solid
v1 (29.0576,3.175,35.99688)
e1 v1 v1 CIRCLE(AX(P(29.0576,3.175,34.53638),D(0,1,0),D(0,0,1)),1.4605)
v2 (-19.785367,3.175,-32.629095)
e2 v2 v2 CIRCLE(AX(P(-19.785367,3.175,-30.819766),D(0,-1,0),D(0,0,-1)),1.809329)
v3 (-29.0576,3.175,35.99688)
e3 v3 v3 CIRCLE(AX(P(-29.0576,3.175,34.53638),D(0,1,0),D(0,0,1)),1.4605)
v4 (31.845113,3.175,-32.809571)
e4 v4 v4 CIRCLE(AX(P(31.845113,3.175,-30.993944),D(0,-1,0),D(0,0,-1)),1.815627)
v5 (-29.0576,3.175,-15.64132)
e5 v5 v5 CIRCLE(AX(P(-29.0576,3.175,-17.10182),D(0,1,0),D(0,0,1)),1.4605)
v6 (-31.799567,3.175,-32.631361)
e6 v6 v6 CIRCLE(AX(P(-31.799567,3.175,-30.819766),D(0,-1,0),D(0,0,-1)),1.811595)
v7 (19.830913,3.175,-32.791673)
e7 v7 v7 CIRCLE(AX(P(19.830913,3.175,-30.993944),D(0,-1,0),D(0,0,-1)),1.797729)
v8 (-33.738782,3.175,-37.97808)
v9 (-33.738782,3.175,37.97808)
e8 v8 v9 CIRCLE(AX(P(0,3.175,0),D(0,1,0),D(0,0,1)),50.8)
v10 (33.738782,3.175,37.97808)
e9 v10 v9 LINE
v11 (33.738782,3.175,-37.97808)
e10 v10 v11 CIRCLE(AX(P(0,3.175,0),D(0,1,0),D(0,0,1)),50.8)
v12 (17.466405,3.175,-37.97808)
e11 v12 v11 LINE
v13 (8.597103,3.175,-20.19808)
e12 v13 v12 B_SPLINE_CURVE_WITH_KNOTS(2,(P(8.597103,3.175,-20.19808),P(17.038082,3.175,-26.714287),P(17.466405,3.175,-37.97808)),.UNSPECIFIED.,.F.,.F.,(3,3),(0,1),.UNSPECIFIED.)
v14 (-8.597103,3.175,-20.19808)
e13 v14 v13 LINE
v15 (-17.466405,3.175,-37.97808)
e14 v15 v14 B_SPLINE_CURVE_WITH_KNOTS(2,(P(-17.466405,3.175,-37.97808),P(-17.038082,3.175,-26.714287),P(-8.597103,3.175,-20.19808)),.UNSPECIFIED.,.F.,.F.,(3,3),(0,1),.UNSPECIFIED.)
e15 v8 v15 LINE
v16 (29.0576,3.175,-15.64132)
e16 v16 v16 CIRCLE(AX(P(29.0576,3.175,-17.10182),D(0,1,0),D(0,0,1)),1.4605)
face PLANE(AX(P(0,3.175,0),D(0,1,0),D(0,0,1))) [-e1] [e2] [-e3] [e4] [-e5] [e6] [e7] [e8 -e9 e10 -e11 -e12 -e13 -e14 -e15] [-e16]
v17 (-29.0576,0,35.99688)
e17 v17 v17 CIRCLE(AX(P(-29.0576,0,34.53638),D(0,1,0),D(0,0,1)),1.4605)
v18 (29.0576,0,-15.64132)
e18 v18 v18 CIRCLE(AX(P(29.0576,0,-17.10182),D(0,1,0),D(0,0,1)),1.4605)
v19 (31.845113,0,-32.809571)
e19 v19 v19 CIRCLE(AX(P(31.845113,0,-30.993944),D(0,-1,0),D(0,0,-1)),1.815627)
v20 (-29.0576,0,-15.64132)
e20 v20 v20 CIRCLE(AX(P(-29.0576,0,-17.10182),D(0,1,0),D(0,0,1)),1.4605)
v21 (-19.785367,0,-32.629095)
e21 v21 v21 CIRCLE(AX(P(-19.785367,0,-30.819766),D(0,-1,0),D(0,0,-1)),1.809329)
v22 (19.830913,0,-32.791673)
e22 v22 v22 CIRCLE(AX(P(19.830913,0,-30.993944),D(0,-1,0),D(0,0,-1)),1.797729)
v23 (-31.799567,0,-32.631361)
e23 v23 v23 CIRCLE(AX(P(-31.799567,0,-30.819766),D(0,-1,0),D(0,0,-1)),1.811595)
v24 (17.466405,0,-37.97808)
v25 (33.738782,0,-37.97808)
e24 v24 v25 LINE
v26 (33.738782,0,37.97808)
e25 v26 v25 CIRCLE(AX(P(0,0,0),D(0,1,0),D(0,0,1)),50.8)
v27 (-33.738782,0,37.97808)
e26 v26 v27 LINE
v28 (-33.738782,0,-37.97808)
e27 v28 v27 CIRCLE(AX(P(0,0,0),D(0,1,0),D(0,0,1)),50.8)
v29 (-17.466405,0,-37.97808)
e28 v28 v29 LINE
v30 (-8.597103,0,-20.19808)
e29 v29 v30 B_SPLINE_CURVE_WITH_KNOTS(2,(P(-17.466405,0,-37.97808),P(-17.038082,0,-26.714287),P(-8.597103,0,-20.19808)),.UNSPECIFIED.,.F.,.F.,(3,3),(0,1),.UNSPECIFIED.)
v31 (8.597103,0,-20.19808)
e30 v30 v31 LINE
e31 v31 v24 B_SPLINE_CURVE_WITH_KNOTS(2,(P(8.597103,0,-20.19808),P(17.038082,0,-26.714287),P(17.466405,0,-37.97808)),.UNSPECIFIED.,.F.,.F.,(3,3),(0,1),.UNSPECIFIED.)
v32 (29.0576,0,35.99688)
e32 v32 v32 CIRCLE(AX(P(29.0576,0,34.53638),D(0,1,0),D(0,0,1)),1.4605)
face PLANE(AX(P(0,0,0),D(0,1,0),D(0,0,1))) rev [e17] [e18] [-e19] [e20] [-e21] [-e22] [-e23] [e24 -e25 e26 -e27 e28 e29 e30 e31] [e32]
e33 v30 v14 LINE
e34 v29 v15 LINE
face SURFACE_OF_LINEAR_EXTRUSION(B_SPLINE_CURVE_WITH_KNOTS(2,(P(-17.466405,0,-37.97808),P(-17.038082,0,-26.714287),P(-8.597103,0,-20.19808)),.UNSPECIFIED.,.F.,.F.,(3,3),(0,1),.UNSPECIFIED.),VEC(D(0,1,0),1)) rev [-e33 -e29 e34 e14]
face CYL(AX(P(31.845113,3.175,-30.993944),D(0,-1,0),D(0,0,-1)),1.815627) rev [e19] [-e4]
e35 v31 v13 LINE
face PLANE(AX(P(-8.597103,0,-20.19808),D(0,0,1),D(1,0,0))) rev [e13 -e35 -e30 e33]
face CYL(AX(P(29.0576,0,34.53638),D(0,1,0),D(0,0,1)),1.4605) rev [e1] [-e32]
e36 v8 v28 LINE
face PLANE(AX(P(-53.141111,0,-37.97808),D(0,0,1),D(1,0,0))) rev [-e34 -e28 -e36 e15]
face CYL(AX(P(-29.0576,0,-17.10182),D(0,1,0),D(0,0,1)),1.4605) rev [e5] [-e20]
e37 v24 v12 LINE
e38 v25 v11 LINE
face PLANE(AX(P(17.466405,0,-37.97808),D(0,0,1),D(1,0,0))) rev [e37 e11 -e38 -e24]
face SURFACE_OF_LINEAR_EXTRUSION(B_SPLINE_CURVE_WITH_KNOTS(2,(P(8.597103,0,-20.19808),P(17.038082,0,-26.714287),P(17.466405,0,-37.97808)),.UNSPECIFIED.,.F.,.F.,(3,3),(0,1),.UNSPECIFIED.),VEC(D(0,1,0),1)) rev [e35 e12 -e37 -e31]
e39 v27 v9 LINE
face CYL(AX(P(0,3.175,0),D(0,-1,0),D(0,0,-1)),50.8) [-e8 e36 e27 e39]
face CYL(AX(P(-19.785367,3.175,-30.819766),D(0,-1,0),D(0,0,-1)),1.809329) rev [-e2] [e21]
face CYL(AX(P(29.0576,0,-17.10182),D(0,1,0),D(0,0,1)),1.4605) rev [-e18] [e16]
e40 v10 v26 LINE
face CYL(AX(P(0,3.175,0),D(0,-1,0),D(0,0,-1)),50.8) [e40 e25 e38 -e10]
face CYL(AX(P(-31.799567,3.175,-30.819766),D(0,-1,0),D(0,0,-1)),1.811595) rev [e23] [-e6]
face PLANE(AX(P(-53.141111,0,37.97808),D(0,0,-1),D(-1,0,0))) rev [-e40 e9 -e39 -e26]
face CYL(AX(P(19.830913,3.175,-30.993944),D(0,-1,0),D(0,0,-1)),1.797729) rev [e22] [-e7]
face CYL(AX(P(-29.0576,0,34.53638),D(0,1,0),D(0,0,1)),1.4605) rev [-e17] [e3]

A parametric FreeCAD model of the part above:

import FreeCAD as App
import Part
import Sketcher

V = App.Vector
Q = App.Units.Quantity

doc = App.newDocument("Part")
params = doc.addObject("Spreadsheet::Sheet", "Params")
for row, (alias, value) in enumerate([
    ("sketch1_diameter", "4 in"),
    ("pad1_length", "0.125 in"),
    ("pocket1_length", "0.125 in"),
    ("sketch3_diameter", "0.115 in"),
    ("pocket2_length", "0.125 in"),
    ("pocket3_length", "0.125 in"),
], start=1):
    params.set(f"A{row}", alias)
    params.set(f"B{row}", "=" + value)
    params.setAlias(f"B{row}", alias)

body = doc.addObject("PartDesign::Body", "Body")

# Sketch on XZ plane
sketch1 = body.newObject("Sketcher::SketchObject", "Sketch")
sketch1.AttachmentSupport = (doc.getObject("XZ_Plane"), [""])
sketch1.MapMode = "FlatFace"
sketch1.addGeometry(Part.Circle(V(0, 0, 0), V(0, 0, 1), 51), False)
sketch1.addConstraint(Sketcher.Constraint("Coincident", 0, 3, -1, 1))
sketch1.addConstraint(Sketcher.Constraint("Diameter", 0, Q("4 in")))
sketch1.setExpression("Constraints[1]", "Params.sketch1_diameter")
pad1 = body.newObject("PartDesign::Pad", "Pad")
pad1.Profile = sketch1
pad1.setExpression("Length", "Params.pad1_length")
pad1.Reversed = True

# Sketch on XZ plane
sketch2 = body.newObject("Sketcher::SketchObject", "Sketch001")
sketch2.AttachmentSupport = (doc.getObject("XZ_Plane"), [""])
sketch2.MapMode = "FlatFace"
sketch2.AttachmentOffset = App.Placement(V(0, 0, -0.125 * 25.4), App.Rotation())
sketch2.addGeometry(Part.LineSegment(V(61.74668, -55.715142, 0), V(-53.141111, -55.715142, 0)), False)
sketch2.addGeometry(Part.LineSegment(V(-53.141111, -55.715142, 0), V(-53.141111, -37.97808, 0)), False)
sketch2.addGeometry(Part.LineSegment(V(-53.141111, -37.97808, 0), V(-17.466405, -37.97808, 0)), False)
sketch2.addGeometry(Part.BSplineCurve([V(-17.466405, -37.97808, 0), V(-17.038082, -26.714287, 0), V(-8.597103, -20.19808, 0)], [3, 3], [0, 1], False, 2, [1, 1, 1], False), False)
sketch2.addGeometry(Part.LineSegment(V(-8.597103, -20.19808, 0), V(8.597103, -20.19808, 0)), False)
sketch2.addGeometry(Part.BSplineCurve([V(17.466405, -37.97808, 0), V(17.038082, -26.714287, 0), V(8.597103, -20.19808, 0)], [3, 3], [0, 1], False, 2, [1, 1, 1], False), False)
sketch2.addGeometry(Part.LineSegment(V(17.466405, -37.97808, 0), V(61.74668, -37.97808, 0)), False)
sketch2.addGeometry(Part.LineSegment(V(61.74668, -37.97808, 0), V(61.74668, -55.715142, 0)), False)
sketch2.addGeometry(Part.LineSegment(V(-53.141111, 37.97808, 0), V(-53.141111, 55.715142, 0)), False)
sketch2.addGeometry(Part.LineSegment(V(-53.141111, 55.715142, 0), V(61.74668, 55.715142, 0)), False)
sketch2.addGeometry(Part.LineSegment(V(61.74668, 55.715142, 0), V(61.74668, 37.97808, 0)), False)
sketch2.addGeometry(Part.LineSegment(V(61.74668, 37.97808, 0), V(-53.141111, 37.97808, 0)), False)
sketch2.addConstraint(Sketcher.Constraint("Block", 3))
sketch2.addConstraint(Sketcher.Constraint("Block", 5))
sketch2.addConstraint(Sketcher.Constraint("Coincident", 0, 2, 1, 1))
sketch2.addConstraint(Sketcher.Constraint("Coincident", 1, 2, 2, 1))
sketch2.addConstraint(Sketcher.Constraint("Coincident", 2, 2, 3, 1))
sketch2.addConstraint(Sketcher.Constraint("Coincident", 3, 2, 4, 1))
sketch2.addConstraint(Sketcher.Constraint("Coincident", 4, 2, 5, 2))
sketch2.addConstraint(Sketcher.Constraint("Coincident", 5, 1, 6, 1))
sketch2.addConstraint(Sketcher.Constraint("Coincident", 6, 2, 7, 1))
sketch2.addConstraint(Sketcher.Constraint("Coincident", 7, 2, 0, 1))
sketch2.addConstraint(Sketcher.Constraint("Coincident", 8, 2, 9, 1))
sketch2.addConstraint(Sketcher.Constraint("Coincident", 9, 2, 10, 1))
sketch2.addConstraint(Sketcher.Constraint("Coincident", 10, 2, 11, 1))
sketch2.addConstraint(Sketcher.Constraint("Coincident", 11, 2, 8, 1))
sketch2.addConstraint(Sketcher.Constraint("Horizontal", 0))
sketch2.addConstraint(Sketcher.Constraint("Vertical", 1))
sketch2.addConstraint(Sketcher.Constraint("Horizontal", 2))
sketch2.addConstraint(Sketcher.Constraint("Horizontal", 6))
sketch2.addConstraint(Sketcher.Constraint("Vertical", 7))
sketch2.addConstraint(Sketcher.Constraint("Vertical", 8))
sketch2.addConstraint(Sketcher.Constraint("Horizontal", 9))
sketch2.addConstraint(Sketcher.Constraint("Vertical", 10))
sketch2.addConstraint(Sketcher.Constraint("Horizontal", 11))
sketch2.addConstraint(Sketcher.Constraint("Symmetric", 0, 2, 8, 2, -1))
sketch2.addConstraint(Sketcher.Constraint("Symmetric", 6, 2, 10, 2, -1))
sketch2.addConstraint(Sketcher.Constraint("DistanceX", 0, 2, 0, 1, Q("114.887791 mm")))
sketch2.addConstraint(Sketcher.Constraint("DistanceX", 2, 1, 2, 2, Q("35.674706 mm")))
sketch2.addConstraint(Sketcher.Constraint("DistanceY", 1, 1, 1, 2, Q("17.737062 mm")))
pocket1 = body.newObject("PartDesign::Pocket", "Pocket")
pocket1.Profile = sketch2
pocket1.setExpression("Length", "Params.pocket1_length")
pocket1.Reversed = True

# Sketch on XZ plane
sketch3 = body.newObject("Sketcher::SketchObject", "Sketch002")
sketch3.AttachmentSupport = (doc.getObject("XZ_Plane"), [""])
sketch3.MapMode = "FlatFace"
sketch3.AttachmentOffset = App.Placement(V(0, 0, -0.125 * 25.4), App.Rotation())
sketch3.addGeometry(Part.Circle(V(-29.1, -17.1, 0), V(0, 0, 1), 1.5), False)
sketch3.addGeometry(Part.Circle(V(29.1, -17.1, 0), V(0, 0, 1), 1.5), False)
sketch3.addGeometry(Part.Circle(V(29.1, 34.5, 0), V(0, 0, 1), 1.5), False)
sketch3.addGeometry(Part.Circle(V(-29.1, 34.5, 0), V(0, 0, 1), 1.5), False)
sketch3.addConstraint(Sketcher.Constraint("Equal", 0, 1))
sketch3.addConstraint(Sketcher.Constraint("Equal", 1, 2))
sketch3.addConstraint(Sketcher.Constraint("Equal", 2, 3))
sketch3.addConstraint(Sketcher.Constraint("Symmetric", 0, 3, 1, 3, -2))
sketch3.addConstraint(Sketcher.Constraint("Symmetric", 2, 3, 3, 3, -2))
sketch3.addConstraint(Sketcher.Constraint("Vertical", 1, 3, 2, 3))
sketch3.addConstraint(Sketcher.Constraint("Diameter", 0, Q("0.115 in")))
sketch3.addConstraint(Sketcher.Constraint("DistanceX", 0, 3, -1, 1, Q("1.144 in")))
sketch3.addConstraint(Sketcher.Constraint("DistanceY", 1, 3, 2, 3, Q("2.033 in")))
sketch3.addConstraint(Sketcher.Constraint("DistanceY", 0, 3, -1, 1, Q("0.6733 in")))
sketch3.setExpression("Constraints[6]", "Params.sketch3_diameter")
pocket2 = body.newObject("PartDesign::Pocket", "Pocket001")
pocket2.Profile = sketch3
pocket2.setExpression("Length", "Params.pocket2_length")
pocket2.Reversed = True

# Sketch on XZ plane
sketch4 = body.newObject("Sketcher::SketchObject", "Sketch003")
sketch4.AttachmentSupport = (doc.getObject("XZ_Plane"), [""])
sketch4.MapMode = "FlatFace"
sketch4.addGeometry(Part.Circle(V(-31.8, -30.8, 0), V(0, 0, 1), 1.8), False)
sketch4.addGeometry(Part.Circle(V(-19.8, -30.8, 0), V(0, 0, 1), 1.8), False)
sketch4.addGeometry(Part.Circle(V(19.8, -31, 0), V(0, 0, 1), 1.8), False)
sketch4.addGeometry(Part.Circle(V(31.8, -31, 0), V(0, 0, 1), 1.8), False)
sketch4.addConstraint(Sketcher.Constraint("Horizontal", 0, 3, 1, 3))
sketch4.addConstraint(Sketcher.Constraint("Horizontal", 2, 3, 3, 3))
sketch4.addConstraint(Sketcher.Constraint("Diameter", 0, Q("3.62319 mm")))
sketch4.addConstraint(Sketcher.Constraint("Diameter", 1, Q("3.618658 mm")))
sketch4.addConstraint(Sketcher.Constraint("DistanceX", 0, 3, 1, 3, Q("0.473 in")))
sketch4.addConstraint(Sketcher.Constraint("DistanceX", 2, 3, 3, 3, Q("0.473 in")))
sketch4.addConstraint(Sketcher.Constraint("Diameter", 2, Q("3.595458 mm")))
sketch4.addConstraint(Sketcher.Constraint("Diameter", 3, Q("3.631254 mm")))
sketch4.addConstraint(Sketcher.Constraint("DistanceX", 1, 3, 2, 3, Q("39.61628 mm")))
sketch4.addConstraint(Sketcher.Constraint("DistanceY", 2, 3, 1, 3, Q("0.174179 mm")))
sketch4.addConstraint(Sketcher.Constraint("DistanceX", 0, 3, -1, 1, Q("31.799567 mm")))
sketch4.addConstraint(Sketcher.Constraint("DistanceY", 0, 3, -1, 1, Q("30.819766 mm")))
pocket3 = body.newObject("PartDesign::Pocket", "Pocket002")
pocket3.Profile = sketch4
pocket3.setExpression("Length", "Params.pocket3_length")

doc.recompute()
